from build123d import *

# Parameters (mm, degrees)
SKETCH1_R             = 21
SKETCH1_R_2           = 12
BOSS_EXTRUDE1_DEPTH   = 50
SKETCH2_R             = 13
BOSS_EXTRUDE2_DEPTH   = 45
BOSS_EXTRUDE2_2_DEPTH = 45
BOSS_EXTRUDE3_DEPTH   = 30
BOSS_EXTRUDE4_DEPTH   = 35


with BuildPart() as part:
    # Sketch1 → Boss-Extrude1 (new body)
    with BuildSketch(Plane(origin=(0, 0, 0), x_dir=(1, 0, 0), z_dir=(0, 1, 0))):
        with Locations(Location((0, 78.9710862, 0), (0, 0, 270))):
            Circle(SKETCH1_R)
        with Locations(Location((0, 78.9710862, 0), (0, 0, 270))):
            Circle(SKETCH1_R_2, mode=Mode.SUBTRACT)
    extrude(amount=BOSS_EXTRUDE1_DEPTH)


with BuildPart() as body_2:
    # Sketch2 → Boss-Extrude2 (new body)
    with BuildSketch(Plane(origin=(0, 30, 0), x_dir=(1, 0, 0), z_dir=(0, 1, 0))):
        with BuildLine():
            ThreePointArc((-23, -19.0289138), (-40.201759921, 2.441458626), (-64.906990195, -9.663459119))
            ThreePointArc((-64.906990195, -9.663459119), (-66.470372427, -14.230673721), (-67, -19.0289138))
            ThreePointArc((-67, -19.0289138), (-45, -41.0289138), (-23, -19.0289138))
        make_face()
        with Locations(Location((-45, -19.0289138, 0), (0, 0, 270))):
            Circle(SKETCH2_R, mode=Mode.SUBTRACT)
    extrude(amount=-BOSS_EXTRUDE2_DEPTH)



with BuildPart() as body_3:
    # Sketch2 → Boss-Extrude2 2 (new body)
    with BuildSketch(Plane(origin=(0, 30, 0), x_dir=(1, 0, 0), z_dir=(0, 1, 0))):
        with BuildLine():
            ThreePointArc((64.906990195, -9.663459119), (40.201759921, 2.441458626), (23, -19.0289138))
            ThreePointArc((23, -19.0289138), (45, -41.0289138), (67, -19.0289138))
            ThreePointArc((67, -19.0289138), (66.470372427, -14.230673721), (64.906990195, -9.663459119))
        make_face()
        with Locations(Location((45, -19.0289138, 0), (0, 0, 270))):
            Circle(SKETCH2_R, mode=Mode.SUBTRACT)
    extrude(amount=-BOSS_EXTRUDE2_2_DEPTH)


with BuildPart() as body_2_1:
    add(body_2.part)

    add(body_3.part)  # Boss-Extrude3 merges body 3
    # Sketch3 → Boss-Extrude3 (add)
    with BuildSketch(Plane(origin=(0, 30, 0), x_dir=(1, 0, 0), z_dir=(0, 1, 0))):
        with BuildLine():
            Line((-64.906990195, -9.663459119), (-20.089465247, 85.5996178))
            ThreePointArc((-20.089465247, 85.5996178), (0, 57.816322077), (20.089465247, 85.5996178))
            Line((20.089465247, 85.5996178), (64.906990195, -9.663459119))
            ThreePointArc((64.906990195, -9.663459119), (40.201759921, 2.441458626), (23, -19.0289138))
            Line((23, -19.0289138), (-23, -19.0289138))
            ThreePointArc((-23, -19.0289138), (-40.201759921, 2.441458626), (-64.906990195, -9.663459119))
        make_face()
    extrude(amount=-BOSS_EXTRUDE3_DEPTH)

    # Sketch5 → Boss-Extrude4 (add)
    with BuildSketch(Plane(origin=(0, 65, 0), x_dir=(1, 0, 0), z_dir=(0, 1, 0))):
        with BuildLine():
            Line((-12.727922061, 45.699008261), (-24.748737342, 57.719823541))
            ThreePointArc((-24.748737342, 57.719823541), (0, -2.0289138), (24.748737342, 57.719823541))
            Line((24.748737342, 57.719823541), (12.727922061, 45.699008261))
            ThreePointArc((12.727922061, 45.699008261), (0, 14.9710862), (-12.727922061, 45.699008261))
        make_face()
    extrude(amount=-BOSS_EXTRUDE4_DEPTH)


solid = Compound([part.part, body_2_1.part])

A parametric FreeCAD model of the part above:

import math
import FreeCAD as App
import Part
import Sketcher

V = App.Vector
Q = App.Units.Quantity

doc = App.newDocument("Part")
body = doc.addObject("PartDesign::Body", "Body")

# Sketch on XZ plane
sketch1 = doc.addObject("Sketcher::SketchObject", "Sketch")
body.addObject(sketch1)
sketch1.AttachmentSupport = (doc.XZ_Plane, [""])
sketch1.MapMode = "FlatFace"
sketch1.addGeometry(Part.Circle(V(0, -78.971086, 0), V(0, 0, 1), 21), False)
sketch1.addGeometry(Part.Circle(V(0, -78.971086, 0), V(0, 0, 1), 12), False)
sketch1.addConstraint(Sketcher.Constraint("Coincident", 1, 3, 0, 3))
sketch1.addConstraint(Sketcher.Constraint("PointOnObject", 0, 3, -2))
sketch1.addConstraint(Sketcher.Constraint("Diameter", 0, Q("42 mm")))
sketch1.addConstraint(Sketcher.Constraint("Diameter", 1, Q("24 mm")))
sketch1.addConstraint(Sketcher.Constraint("DistanceY", 0, 3, -1, 1, Q("78.971086 mm")))
pad1 = doc.addObject("PartDesign::Pad", "Pad")
body.addObject(pad1)
pad1.Profile = sketch1
pad1.Length = 50
pad1.Reversed = True
body2 = doc.addObject("PartDesign::Body", "Body001")

# Sketch on XZ plane
sketch2 = doc.addObject("Sketcher::SketchObject", "Sketch001")
body2.addObject(sketch2)
sketch2.AttachmentSupport = (doc.getObject("XZ_Plane001"), [""])
sketch2.MapMode = "FlatFace"
sketch2.AttachmentOffset = App.Placement(V(0, 0, -30), App.Rotation())
sketch2.addGeometry(Part.ArcOfCircle(Part.Circle(V(-45, 19.028914, 0), V(0, 0, 1), 22), math.radians(-154.804863), math.radians(0)), False)
sketch2.addGeometry(Part.ArcOfCircle(Part.Circle(V(-45, 19.028914, 0), V(0, 0, 1), 22), math.radians(180), math.radians(205.195137)), False)
sketch2.addGeometry(Part.ArcOfCircle(Part.Circle(V(-45, 19.028914, 0), V(0, 0, 1), 22), math.radians(0), math.radians(180)), False)
sketch2.addGeometry(Part.Circle(V(-45, 19.028914, 0), V(0, 0, 1), 13), False)
sketch2.addConstraint(Sketcher.Constraint("Tangent", 0, 1, 1, 2))
sketch2.addConstraint(Sketcher.Constraint("Tangent", 1, 1, 2, 2))
sketch2.addConstraint(Sketcher.Constraint("Tangent", 2, 1, 0, 2))
sketch2.addConstraint(Sketcher.Constraint("Coincident", 3, 3, 0, 3))
sketch2.addConstraint(Sketcher.Constraint("Horizontal", 3, 3, 1, 1))
sketch2.addConstraint(Sketcher.Constraint("Horizontal", 1, 1, 2, 1))
sketch2.addConstraint(Sketcher.Constraint("Diameter", 3, Q("26 mm")))
sketch2.addConstraint(Sketcher.Constraint("Radius", 0, Q("22 mm")))
sketch2.addConstraint(Sketcher.Constraint("DistanceX", 0, 3, -1, 1, Q("45 mm")))
sketch2.addConstraint(Sketcher.Constraint("DistanceX", 0, 1, -1, 1, Q("64.90699 mm")))
sketch2.addConstraint(Sketcher.Constraint("DistanceY", -1, 1, 0, 1, Q("9.663459 mm")))
pad2 = doc.addObject("PartDesign::Pad", "Pad001")
body2.addObject(pad2)
pad2.Profile = sketch2
pad2.Length = 45
body3 = doc.addObject("PartDesign::Body", "Body002")

# Sketch on XZ plane
sketch3 = doc.addObject("Sketcher::SketchObject", "Sketch002")
body3.addObject(sketch3)
sketch3.AttachmentSupport = (doc.getObject("XZ_Plane002"), [""])
sketch3.MapMode = "FlatFace"
sketch3.AttachmentOffset = App.Placement(V(0, 0, -30), App.Rotation())
sketch3.addGeometry(Part.ArcOfCircle(Part.Circle(V(45, 19.028914, 0), V(0, 0, 1), 22), math.radians(-180), math.radians(-25.195137)), False)
sketch3.addGeometry(Part.ArcOfCircle(Part.Circle(V(45, 19.028914, 0), V(0, 0, 1), 22), math.radians(0), math.radians(180)), False)
sketch3.addGeometry(Part.ArcOfCircle(Part.Circle(V(45, 19.028914, 0), V(0, 0, 1), 22), math.radians(-25.195137), math.radians(0)), False)
sketch3.addGeometry(Part.Circle(V(45, 19.028914, 0), V(0, 0, 1), 13), False)
sketch3.addConstraint(Sketcher.Constraint("Tangent", 0, 1, 1, 2))
sketch3.addConstraint(Sketcher.Constraint("Tangent", 1, 1, 2, 2))
sketch3.addConstraint(Sketcher.Constraint("Tangent", 2, 1, 0, 2))
sketch3.addConstraint(Sketcher.Constraint("Coincident", 3, 3, 0, 3))
sketch3.addConstraint(Sketcher.Constraint("Horizontal", 3, 3, 0, 1))
sketch3.addConstraint(Sketcher.Constraint("Horizontal", 0, 1, 1, 1))
sketch3.addConstraint(Sketcher.Constraint("Diameter", 3, Q("26 mm")))
sketch3.addConstraint(Sketcher.Constraint("Radius", 0, Q("22 mm")))
sketch3.addConstraint(Sketcher.Constraint("DistanceX", -1, 1, 0, 3, Q("45 mm")))
sketch3.addConstraint(Sketcher.Constraint("DistanceX", -1, 1, 2, 1, Q("64.90699 mm")))
sketch3.addConstraint(Sketcher.Constraint("DistanceY", -1, 1, 2, 1, Q("9.663459 mm")))
pad3 = doc.addObject("PartDesign::Pad", "Pad002")
body3.addObject(pad3)
pad3.Profile = sketch3
pad3.Length = 45
body2.AllowCompound = True
doc.recompute()

boolean = doc.addObject("PartDesign::Boolean", "Boolean")
body2.addObject(boolean)
boolean.Type = "Fuse"
boolean.addObjects([body3])

# Sketch on XZ plane
sketch4 = doc.addObject("Sketcher::SketchObject", "Sketch003")
body2.addObject(sketch4)
sketch4.AttachmentSupport = (doc.getObject("XZ_Plane001"), [""])
sketch4.MapMode = "FlatFace"
sketch4.AttachmentOffset = App.Placement(V(0, 0, -30), App.Rotation())
sketch4.addGeometry(Part.LineSegment(V(-20.089465, -85.599618, 0), V(-64.90699, 9.663459, 0)), False)
sketch4.addGeometry(Part.ArcOfCircle(Part.Circle(V(-45, 19.028914, 0), V(0, 0, 1), 22), math.radians(-154.804863), math.radians(0)), False)
sketch4.addGeometry(Part.LineSegment(V(-23, 19.028914, 0), V(23, 19.028914, 0)), False)
sketch4.addGeometry(Part.ArcOfCircle(Part.Circle(V(45, 19.028914, 0), V(0, 0, 1), 22), math.radians(-180), math.radians(-25.195137)), False)
sketch4.addGeometry(Part.LineSegment(V(64.90699, 9.663459, 0), V(20.089465, -85.599618, 0)), False)
sketch4.addGeometry(Part.ArcOfCircle(Part.Circle(V(0, -78.971086, 0), V(0, 0, 1), 21.154764), math.radians(-18.260339), math.radians(198.260339)), False)
sketch4.addConstraint(Sketcher.Constraint("Tangent", 0, 2, 1, 1))
sketch4.addConstraint(Sketcher.Constraint("Coincident", 1, 2, 2, 1))
sketch4.addConstraint(Sketcher.Constraint("Coincident", 2, 2, 3, 1))
sketch4.addConstraint(Sketcher.Constraint("Tangent", 3, 2, 4, 1))
sketch4.addConstraint(Sketcher.Constraint("Coincident", 4, 2, 5, 1))
sketch4.addConstraint(Sketcher.Constraint("Coincident", 5, 2, 0, 1))
sketch4.addConstraint(Sketcher.Constraint("Horizontal", 2))
sketch4.addConstraint(Sketcher.Constraint("Equal", 1, 3))
sketch4.addConstraint(Sketcher.Constraint("Symmetric", 1, 3, 3, 3, -2))
sketch4.addConstraint(Sketcher.Constraint("Symmetric", 4, 2, 5, 2, -2))
sketch4.addConstraint(Sketcher.Constraint("Horizontal", 3, 3, 1, 2))
sketch4.addConstraint(Sketcher.Constraint("Radius", 1, Q("22 mm")))
sketch4.addConstraint(Sketcher.Constraint("DistanceX", 2, 1, 2, 2, Q("46 mm")))
sketch4.addConstraint(Sketcher.Constraint("DistanceY", 5, 3, 1, 3, Q("98 mm")))
sketch4.addConstraint(Sketcher.Constraint("Radius", 5, Q("21.154764 mm")))
sketch4.addConstraint(Sketcher.Constraint("DistanceX", 0, 2, -1, 1, Q("64.90699 mm")))
sketch4.addConstraint(Sketcher.Constraint("DistanceY", -1, 1, 0, 2, Q("9.663459 mm")))
pad4 = doc.addObject("PartDesign::Pad", "Pad003")
body2.addObject(pad4)
pad4.Profile = sketch4
pad4.Length = 30

# Sketch on XZ plane
sketch5 = doc.addObject("Sketcher::SketchObject", "Sketch004")
body2.addObject(sketch5)
sketch5.AttachmentSupport = (doc.getObject("XZ_Plane001"), [""])
sketch5.MapMode = "FlatFace"
sketch5.AttachmentOffset = App.Placement(V(0, 0, -65), App.Rotation())
sketch5.addGeometry(Part.LineSegment(V(-12.727922, -45.699008, 0), V(-24.748737, -57.719824, 0)), False)
sketch5.addGeometry(Part.ArcOfCircle(Part.Circle(V(0, -32.971086, 0), V(0, 0, 1), 35), math.radians(-45), math.radians(225)), False)
sketch5.addGeometry(Part.LineSegment(V(24.748737, -57.719824, 0), V(12.727922, -45.699008, 0)), False)
sketch5.addGeometry(Part.ArcOfCircle(Part.Circle(V(0, -32.971086, 0), V(0, 0, 1), 18), math.radians(-45), math.radians(225)), False)
sketch5.addConstraint(Sketcher.Constraint("Coincident", 0, 2, 1, 2))
sketch5.addConstraint(Sketcher.Constraint("Coincident", 1, 1, 2, 1))
sketch5.addConstraint(Sketcher.Constraint("Coincident", 2, 2, 3, 1))
sketch5.addConstraint(Sketcher.Constraint("Coincident", 3, 2, 0, 1))
sketch5.addConstraint(Sketcher.Constraint("Coincident", 3, 3, 1, 3))
sketch5.addConstraint(Sketcher.Constraint("Symmetric", 0, 2, 1, 1, -2))
sketch5.addConstraint(Sketcher.Constraint("Perpendicular", 0, 2))
sketch5.addConstraint(Sketcher.Constraint("Horizontal", 2, 2, 3, 2))
sketch5.addConstraint(Sketcher.Constraint("Radius", 1, Q("35 mm")))
sketch5.addConstraint(Sketcher.Constraint("Radius", 3, Q("18 mm")))
sketch5.addConstraint(Sketcher.Constraint("DistanceY", 2, 2, -1, 1, Q("45.699008 mm")))
sketch5.addConstraint(Sketcher.Constraint("DistanceX", 0, 2, 2, 2, Q("37.476659 mm")))
pad5 = doc.addObject("PartDesign::Pad", "Pad004")
body2.addObject(pad5)
pad5.Profile = sketch5
pad5.Length = 35

doc.recompute()
